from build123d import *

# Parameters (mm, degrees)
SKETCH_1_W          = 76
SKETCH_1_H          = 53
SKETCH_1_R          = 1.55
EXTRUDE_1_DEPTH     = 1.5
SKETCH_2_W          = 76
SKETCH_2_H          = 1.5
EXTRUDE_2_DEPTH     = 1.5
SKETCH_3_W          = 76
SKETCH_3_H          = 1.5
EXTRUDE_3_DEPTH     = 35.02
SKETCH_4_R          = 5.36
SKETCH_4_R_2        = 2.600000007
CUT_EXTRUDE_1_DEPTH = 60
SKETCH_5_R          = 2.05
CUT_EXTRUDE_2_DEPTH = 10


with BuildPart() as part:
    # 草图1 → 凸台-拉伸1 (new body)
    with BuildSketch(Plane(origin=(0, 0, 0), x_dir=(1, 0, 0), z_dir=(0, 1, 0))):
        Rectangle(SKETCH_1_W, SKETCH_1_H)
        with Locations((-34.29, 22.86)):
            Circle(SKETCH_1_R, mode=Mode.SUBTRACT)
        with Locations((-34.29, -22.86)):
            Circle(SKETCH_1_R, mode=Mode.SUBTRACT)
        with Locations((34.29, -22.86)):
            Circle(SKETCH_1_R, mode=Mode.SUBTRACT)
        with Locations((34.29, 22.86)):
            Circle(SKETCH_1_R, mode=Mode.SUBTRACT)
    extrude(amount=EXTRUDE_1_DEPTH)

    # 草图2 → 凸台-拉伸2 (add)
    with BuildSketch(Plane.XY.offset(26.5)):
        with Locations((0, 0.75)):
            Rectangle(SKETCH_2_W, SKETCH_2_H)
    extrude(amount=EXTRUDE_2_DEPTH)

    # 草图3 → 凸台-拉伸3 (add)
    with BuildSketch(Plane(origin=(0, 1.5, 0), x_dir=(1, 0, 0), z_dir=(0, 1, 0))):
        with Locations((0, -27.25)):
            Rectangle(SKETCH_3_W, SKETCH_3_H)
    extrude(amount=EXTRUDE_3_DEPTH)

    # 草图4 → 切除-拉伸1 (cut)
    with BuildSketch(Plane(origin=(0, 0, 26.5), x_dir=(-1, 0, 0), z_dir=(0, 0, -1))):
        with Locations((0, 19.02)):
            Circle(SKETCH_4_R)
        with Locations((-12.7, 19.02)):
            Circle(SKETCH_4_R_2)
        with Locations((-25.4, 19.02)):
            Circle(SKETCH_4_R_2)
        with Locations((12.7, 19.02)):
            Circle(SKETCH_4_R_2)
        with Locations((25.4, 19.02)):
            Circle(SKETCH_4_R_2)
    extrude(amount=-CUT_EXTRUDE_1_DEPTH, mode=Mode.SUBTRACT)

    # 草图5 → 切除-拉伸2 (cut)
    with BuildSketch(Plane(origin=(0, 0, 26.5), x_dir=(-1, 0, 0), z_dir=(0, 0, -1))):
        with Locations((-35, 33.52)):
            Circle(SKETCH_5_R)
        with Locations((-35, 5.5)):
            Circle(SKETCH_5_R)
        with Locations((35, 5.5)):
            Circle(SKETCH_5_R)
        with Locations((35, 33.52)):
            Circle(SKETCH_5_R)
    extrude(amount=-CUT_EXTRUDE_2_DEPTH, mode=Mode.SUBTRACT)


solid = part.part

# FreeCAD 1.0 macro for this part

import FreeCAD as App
import Part
import Sketcher

V = App.Vector

doc = App.newDocument("Part")
body = doc.addObject("PartDesign::Body", "Body")

sketch1 = body.newObject("Sketcher::SketchObject", "Sketch")
sketch1.AttachmentSupport = (doc.getObject("XZ_Plane"), [""])
sketch1.MapMode = "FlatFace"
sketch1.addGeometry([
    Part.LineSegment(V(-38, -26.5, 0), V(-38, 26.5, 0)),
    Part.LineSegment(V(-38, 26.5, 0), V(38, 26.5, 0)),
    Part.LineSegment(V(38, 26.5, 0), V(38, -26.5, 0)),
    Part.LineSegment(V(38, -26.5, 0), V(-38, -26.5, 0)),
    Part.Circle(V(-34.29, 22.86, 0), V(0, 0, 1), 1.55),
    Part.Circle(V(34.29, 22.86, 0), V(0, 0, 1), 1.55),
    Part.Circle(V(-34.29, -22.86, 0), V(0, 0, 1), 1.55),
    Part.Circle(V(34.29, -22.86, 0), V(0, 0, 1), 1.55),
], False)
sketch1.addConstraint([
    Sketcher.Constraint("Coincident", 0, 2, 1, 1),
    Sketcher.Constraint("Coincident", 1, 2, 2, 1),
    Sketcher.Constraint("Coincident", 2, 2, 3, 1),
    Sketcher.Constraint("Coincident", 3, 2, 0, 1),
    Sketcher.Constraint("Vertical", 0),
    Sketcher.Constraint("Horizontal", 1),
    Sketcher.Constraint("Vertical", 2),
    Sketcher.Constraint("Horizontal", 3),
    Sketcher.Constraint("Equal", 4, 5),
    Sketcher.Constraint("Equal", 5, 6),
    Sketcher.Constraint("Equal", 6, 7),
    Sketcher.Constraint("Symmetric", 5, 3, 6, 3, -1, 1),
    Sketcher.Constraint("Symmetric", 4, 3, 7, 3, -1, 1),
    Sketcher.Constraint("Symmetric", 0, 2, 2, 2, -1, 1),
    Sketcher.Constraint("Symmetric", 4, 3, 5, 3, -2),
    Sketcher.Constraint("Diameter", 4, 3.1),
    Sketcher.Constraint("DistanceX", 1, 1, 1, 2, 76.0),
    Sketcher.Constraint("DistanceY", 0, 1, 0, 2, 53.0),
    Sketcher.Constraint("DistanceX", 4, 3, -1, 1, 34.29),
    Sketcher.Constraint("DistanceY", -1, 1, 4, 3, 22.86),
])
pad1 = body.newObject("PartDesign::Pad", "Pad")
pad1.Profile = sketch1
pad1.Length = 1.5
pad1.Reversed = True

sketch2 = body.newObject("Sketcher::SketchObject", "Sketch001")
sketch2.AttachmentSupport = (doc.getObject("XY_Plane"), [""])
sketch2.MapMode = "FlatFace"
sketch2.AttachmentOffset = App.Placement(V(0, 0, 26.5), App.Rotation())
sketch2.addGeometry([
    Part.LineSegment(V(-38, 1.5, 0), V(-38, 0, 0)),
    Part.LineSegment(V(-38, 0, 0), V(38, 0, 0)),
    Part.LineSegment(V(38, 0, 0), V(38, 1.5, 0)),
    Part.LineSegment(V(38, 1.5, 0), V(-38, 1.5, 0)),
], False)
sketch2.addConstraint([
    Sketcher.Constraint("Coincident", 0, 2, 1, 1),
    Sketcher.Constraint("Coincident", 1, 2, 2, 1),
    Sketcher.Constraint("Coincident", 2, 2, 3, 1),
    Sketcher.Constraint("Coincident", 3, 2, 0, 1),
    Sketcher.Constraint("Vertical", 0),
    Sketcher.Constraint("Horizontal", 1),
    Sketcher.Constraint("Vertical", 2),
    Sketcher.Constraint("Horizontal", 3),
    Sketcher.Constraint("Symmetric", 0, 2, 1, 2, -1, 1),
    Sketcher.Constraint("DistanceX", 1, 1, 1, 2, 76.0),
    Sketcher.Constraint("DistanceY", 0, 2, 0, 1, 1.5),
])
pad2 = body.newObject("PartDesign::Pad", "Pad001")
pad2.Profile = sketch2
pad2.Length = 1.5

sketch3 = body.newObject("Sketcher::SketchObject", "Sketch002")
sketch3.AttachmentSupport = (doc.getObject("XZ_Plane"), [""])
sketch3.MapMode = "FlatFace"
sketch3.AttachmentOffset = App.Placement(V(0, 0, -1.5), App.Rotation())
sketch3.addGeometry([
    Part.LineSegment(V(-38, 26.5, 0), V(-38, 28, 0)),
    Part.LineSegment(V(-38, 28, 0), V(38, 28, 0)),
    Part.LineSegment(V(38, 28, 0), V(38, 26.5, 0)),
    Part.LineSegment(V(38, 26.5, 0), V(-38, 26.5, 0)),
], False)
sketch3.addConstraint([
    Sketcher.Constraint("Coincident", 0, 2, 1, 1),
    Sketcher.Constraint("Coincident", 1, 2, 2, 1),
    Sketcher.Constraint("Coincident", 2, 2, 3, 1),
    Sketcher.Constraint("Coincident", 3, 2, 0, 1),
    Sketcher.Constraint("Vertical", 0),
    Sketcher.Constraint("Horizontal", 1),
    Sketcher.Constraint("Vertical", 2),
    Sketcher.Constraint("Horizontal", 3),
    Sketcher.Constraint("DistanceX", 1, 1, 1, 2, 76.0),
    Sketcher.Constraint("DistanceY", 0, 1, 0, 2, 1.5),
    Sketcher.Constraint("DistanceX", 0, 2, -1, 1, 38.0),
    Sketcher.Constraint("DistanceY", -1, 1, 0, 2, 28.0),
])
pad3 = body.newObject("PartDesign::Pad", "Pad002")
pad3.Profile = sketch3
pad3.Length = 35.02
pad3.Reversed = True

sketch4 = body.newObject("Sketcher::SketchObject", "Sketch003")
sketch4.AttachmentSupport = (doc.getObject("XY_Plane"), [""])
sketch4.MapMode = "FlatFace"
sketch4.AttachmentOffset = App.Placement(V(0, 0, 26.5), App.Rotation())
sketch4.addGeometry([
    Part.Circle(V(0, 19.02, 0), V(0, 0, 1), 5.36),
    Part.Circle(V(12.7, 19.02, 0), V(0, 0, 1), 2.6),
    Part.Circle(V(25.4, 19.02, 0), V(0, 0, 1), 2.6),
    Part.Circle(V(-12.7, 19.02, 0), V(0, 0, 1), 2.6),
    Part.Circle(V(-25.4, 19.02, 0), V(0, 0, 1), 2.6),
], False)
sketch4.addConstraint([
    Sketcher.Constraint("Equal", 1, 2),
    Sketcher.Constraint("Equal", 2, 3),
    Sketcher.Constraint("Equal", 3, 4),
    Sketcher.Constraint("Symmetric", 1, 3, 3, 3, -2),
    Sketcher.Constraint("Symmetric", 2, 3, 4, 3, -2),
    Sketcher.Constraint("PointOnObject", 0, 3, -2),
    Sketcher.Constraint("Horizontal", 0, 3, 1, 3),
    Sketcher.Constraint("Horizontal", 1, 3, 2, 3),
    Sketcher.Constraint("Diameter", 1, 5.2),
    Sketcher.Constraint("Diameter", 0, 10.72),
    Sketcher.Constraint("DistanceX", -1, 1, 1, 3, 12.7),
    Sketcher.Constraint("DistanceX", -1, 1, 2, 3, 25.4),
    Sketcher.Constraint("DistanceY", -1, 1, 0, 3, 19.02),
])
pocket1 = body.newObject("PartDesign::Pocket", "Pocket")
pocket1.Profile = sketch4
pocket1.Length = 60
pocket1.Reversed = True

sketch5 = body.newObject("Sketcher::SketchObject", "Sketch004")
sketch5.AttachmentSupport = (doc.getObject("XY_Plane"), [""])
sketch5.MapMode = "FlatFace"
sketch5.AttachmentOffset = App.Placement(V(0, 0, 26.5), App.Rotation())
sketch5.addGeometry([
    Part.Circle(V(35, 33.52, 0), V(0, 0, 1), 2.05),
    Part.Circle(V(35, 5.5, 0), V(0, 0, 1), 2.05),
    Part.Circle(V(-35, 5.5, 0), V(0, 0, 1), 2.05),
    Part.Circle(V(-35, 33.52, 0), V(0, 0, 1), 2.05),
], False)
sketch5.addConstraint([
    Sketcher.Constraint("Equal", 0, 1),
    Sketcher.Constraint("Equal", 1, 2),
    Sketcher.Constraint("Equal", 2, 3),
    Sketcher.Constraint("Symmetric", 1, 3, 2, 3, -2),
    Sketcher.Constraint("Symmetric", 0, 3, 3, 3, -2),
    Sketcher.Constraint("Vertical", 0, 3, 1, 3),
    Sketcher.Constraint("Diameter", 0, 4.1),
    Sketcher.Constraint("DistanceX", -1, 1, 0, 3, 35.0),
    Sketcher.Constraint("DistanceY", -1, 1, 1, 3, 5.5),
    Sketcher.Constraint("DistanceY", -1, 1, 0, 3, 33.52),
])
pocket2 = body.newObject("PartDesign::Pocket", "Pocket001")
pocket2.Profile = sketch5
pocket2.Length = 10
pocket2.Reversed = True

doc.recompute()
